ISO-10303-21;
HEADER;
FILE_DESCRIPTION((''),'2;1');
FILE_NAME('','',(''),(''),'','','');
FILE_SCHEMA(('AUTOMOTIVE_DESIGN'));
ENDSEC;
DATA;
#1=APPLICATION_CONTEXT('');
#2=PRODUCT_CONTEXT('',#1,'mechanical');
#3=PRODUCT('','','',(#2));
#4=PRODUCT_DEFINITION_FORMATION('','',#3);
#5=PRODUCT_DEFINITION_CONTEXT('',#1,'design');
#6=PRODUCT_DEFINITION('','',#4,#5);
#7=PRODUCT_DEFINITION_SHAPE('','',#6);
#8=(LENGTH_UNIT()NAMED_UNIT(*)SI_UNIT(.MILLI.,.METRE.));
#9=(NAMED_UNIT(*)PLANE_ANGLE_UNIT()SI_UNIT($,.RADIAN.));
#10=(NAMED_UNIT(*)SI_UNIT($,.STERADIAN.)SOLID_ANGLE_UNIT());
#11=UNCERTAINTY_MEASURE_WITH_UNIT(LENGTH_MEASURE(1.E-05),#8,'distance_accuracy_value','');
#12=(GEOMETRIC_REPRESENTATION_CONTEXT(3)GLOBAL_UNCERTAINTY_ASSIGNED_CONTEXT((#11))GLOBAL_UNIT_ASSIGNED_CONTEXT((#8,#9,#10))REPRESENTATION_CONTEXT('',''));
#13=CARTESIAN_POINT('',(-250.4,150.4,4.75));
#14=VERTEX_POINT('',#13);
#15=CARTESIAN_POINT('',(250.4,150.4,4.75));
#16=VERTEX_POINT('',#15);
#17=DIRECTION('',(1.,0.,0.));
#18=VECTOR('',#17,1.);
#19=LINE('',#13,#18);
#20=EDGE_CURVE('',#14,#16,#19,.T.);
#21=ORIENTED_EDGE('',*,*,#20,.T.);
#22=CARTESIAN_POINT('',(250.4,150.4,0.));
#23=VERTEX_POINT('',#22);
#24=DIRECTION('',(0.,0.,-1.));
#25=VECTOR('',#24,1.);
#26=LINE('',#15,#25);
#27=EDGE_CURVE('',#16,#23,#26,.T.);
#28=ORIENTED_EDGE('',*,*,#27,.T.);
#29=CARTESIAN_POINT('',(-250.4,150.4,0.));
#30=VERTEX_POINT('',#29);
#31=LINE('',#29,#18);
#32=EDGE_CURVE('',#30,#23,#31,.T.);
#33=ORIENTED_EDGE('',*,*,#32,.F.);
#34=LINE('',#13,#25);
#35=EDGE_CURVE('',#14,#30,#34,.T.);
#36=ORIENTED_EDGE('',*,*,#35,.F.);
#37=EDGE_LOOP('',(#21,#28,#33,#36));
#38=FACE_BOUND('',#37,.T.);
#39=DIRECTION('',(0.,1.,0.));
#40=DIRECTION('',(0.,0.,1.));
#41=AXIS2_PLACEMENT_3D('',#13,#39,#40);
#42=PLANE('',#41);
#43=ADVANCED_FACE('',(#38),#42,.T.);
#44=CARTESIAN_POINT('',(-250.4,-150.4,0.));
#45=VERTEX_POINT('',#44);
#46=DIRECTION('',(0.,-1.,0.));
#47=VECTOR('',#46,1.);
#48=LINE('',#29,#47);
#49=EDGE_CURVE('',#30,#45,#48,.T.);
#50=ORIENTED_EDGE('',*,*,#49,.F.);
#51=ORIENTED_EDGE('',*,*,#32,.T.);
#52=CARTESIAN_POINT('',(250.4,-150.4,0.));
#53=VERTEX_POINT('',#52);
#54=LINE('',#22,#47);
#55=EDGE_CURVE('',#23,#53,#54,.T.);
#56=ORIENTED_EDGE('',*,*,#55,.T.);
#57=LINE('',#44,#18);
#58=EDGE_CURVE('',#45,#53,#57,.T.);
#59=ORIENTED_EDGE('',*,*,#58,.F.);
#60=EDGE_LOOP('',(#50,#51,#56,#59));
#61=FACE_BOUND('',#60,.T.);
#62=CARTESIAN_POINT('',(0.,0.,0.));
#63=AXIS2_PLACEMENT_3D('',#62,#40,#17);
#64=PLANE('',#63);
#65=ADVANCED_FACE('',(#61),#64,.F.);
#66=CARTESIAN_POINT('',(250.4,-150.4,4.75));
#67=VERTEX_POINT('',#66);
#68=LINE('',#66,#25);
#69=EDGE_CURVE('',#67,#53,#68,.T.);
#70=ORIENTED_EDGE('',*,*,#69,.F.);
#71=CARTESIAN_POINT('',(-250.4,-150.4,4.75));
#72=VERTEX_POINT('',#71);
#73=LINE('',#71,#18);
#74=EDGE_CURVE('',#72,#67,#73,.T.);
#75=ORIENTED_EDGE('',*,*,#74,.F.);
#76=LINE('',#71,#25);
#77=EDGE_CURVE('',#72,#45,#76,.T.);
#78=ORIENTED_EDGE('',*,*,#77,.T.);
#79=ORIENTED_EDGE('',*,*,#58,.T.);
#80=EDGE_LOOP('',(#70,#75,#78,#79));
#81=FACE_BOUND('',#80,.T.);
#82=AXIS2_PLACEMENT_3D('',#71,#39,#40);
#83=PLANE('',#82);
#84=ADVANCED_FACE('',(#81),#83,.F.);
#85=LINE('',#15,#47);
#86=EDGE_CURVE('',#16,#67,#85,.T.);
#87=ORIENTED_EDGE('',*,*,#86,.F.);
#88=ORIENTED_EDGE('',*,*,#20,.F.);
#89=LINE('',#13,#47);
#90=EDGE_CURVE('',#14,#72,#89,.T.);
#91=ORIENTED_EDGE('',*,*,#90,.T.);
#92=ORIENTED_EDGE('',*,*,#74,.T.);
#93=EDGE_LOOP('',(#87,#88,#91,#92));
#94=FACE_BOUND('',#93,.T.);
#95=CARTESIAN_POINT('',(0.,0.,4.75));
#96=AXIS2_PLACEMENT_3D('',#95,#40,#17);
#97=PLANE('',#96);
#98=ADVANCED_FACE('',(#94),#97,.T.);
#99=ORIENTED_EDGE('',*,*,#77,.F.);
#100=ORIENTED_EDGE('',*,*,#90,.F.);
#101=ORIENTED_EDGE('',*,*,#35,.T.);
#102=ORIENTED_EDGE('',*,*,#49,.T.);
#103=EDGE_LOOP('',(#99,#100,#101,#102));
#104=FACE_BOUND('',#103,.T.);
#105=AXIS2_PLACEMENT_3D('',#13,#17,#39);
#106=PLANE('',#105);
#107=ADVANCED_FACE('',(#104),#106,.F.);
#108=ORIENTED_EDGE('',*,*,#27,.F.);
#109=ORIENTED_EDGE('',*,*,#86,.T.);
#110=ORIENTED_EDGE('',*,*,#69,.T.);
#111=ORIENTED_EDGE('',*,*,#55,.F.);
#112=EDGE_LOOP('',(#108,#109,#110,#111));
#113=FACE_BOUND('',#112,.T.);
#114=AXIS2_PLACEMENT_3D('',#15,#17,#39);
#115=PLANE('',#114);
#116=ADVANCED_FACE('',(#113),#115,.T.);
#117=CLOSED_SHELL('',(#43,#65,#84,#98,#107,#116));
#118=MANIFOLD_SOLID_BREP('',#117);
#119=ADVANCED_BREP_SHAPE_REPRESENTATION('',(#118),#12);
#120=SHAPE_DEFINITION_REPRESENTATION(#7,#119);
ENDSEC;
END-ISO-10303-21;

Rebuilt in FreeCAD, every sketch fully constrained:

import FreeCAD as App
import Part
import Sketcher

V = App.Vector


def add_polygon(sketch, points):
    """Adds a closed chain of lines whose ends are joined by coincident constraints."""
    first, n = sketch.GeometryCount, len(points)
    for a, b in zip(points, points[1:] + points[:1]):
        sketch.addGeometry(Part.LineSegment(App.Vector(*a, 0), App.Vector(*b, 0)), False)
    for i in range(n):
        sketch.addConstraint(Sketcher.Constraint("Coincident", first + i, 2, first + (i + 1) % n, 1))

doc = App.newDocument("Part")
params = doc.addObject("Spreadsheet::Sheet", "Params")
for row, (alias, value) in enumerate([
    ("sketch1_width", "500.8 mm"),
    ("sketch1_height", "300.8 mm"),
    ("pad1_length", "4.75 mm"),
], start=1):
    params.set(f"A{row}", alias)
    params.set(f"B{row}", "=" + value)
    params.setAlias(f"B{row}", alias)

body = doc.addObject("PartDesign::Body", "Body")

# Sketch on XY plane
sketch1 = body.newObject("Sketcher::SketchObject", "Sketch")
sketch1.AttachmentSupport = (doc.getObject("XY_Plane"), [""])
sketch1.MapMode = "FlatFace"
add_polygon(sketch1, [(-250, 150), (-250, -150), (250, -150), (250, 150)])  # lines 0-3
sketch1.addConstraint([
    Sketcher.Constraint("Vertical", 0),
    Sketcher.Constraint("Horizontal", 1),
    Sketcher.Constraint("Vertical", 2),
    Sketcher.Constraint("Horizontal", 3),
    Sketcher.Constraint("Symmetric", 0, 2, 2, 2, -1, 1),
    Sketcher.Constraint("DistanceX", 1, 1, 1, 2, 500.8),
    Sketcher.Constraint("DistanceY", 0, 2, 0, 1, 300.8),
])
sketch1.setExpression("Constraints[9]", "Params.sketch1_width")
sketch1.setExpression("Constraints[10]", "Params.sketch1_height")
pad1 = body.newObject("PartDesign::Pad", "Pad")
pad1.Profile = sketch1
pad1.setExpression("Length", "Params.pad1_length")

doc.recompute()
